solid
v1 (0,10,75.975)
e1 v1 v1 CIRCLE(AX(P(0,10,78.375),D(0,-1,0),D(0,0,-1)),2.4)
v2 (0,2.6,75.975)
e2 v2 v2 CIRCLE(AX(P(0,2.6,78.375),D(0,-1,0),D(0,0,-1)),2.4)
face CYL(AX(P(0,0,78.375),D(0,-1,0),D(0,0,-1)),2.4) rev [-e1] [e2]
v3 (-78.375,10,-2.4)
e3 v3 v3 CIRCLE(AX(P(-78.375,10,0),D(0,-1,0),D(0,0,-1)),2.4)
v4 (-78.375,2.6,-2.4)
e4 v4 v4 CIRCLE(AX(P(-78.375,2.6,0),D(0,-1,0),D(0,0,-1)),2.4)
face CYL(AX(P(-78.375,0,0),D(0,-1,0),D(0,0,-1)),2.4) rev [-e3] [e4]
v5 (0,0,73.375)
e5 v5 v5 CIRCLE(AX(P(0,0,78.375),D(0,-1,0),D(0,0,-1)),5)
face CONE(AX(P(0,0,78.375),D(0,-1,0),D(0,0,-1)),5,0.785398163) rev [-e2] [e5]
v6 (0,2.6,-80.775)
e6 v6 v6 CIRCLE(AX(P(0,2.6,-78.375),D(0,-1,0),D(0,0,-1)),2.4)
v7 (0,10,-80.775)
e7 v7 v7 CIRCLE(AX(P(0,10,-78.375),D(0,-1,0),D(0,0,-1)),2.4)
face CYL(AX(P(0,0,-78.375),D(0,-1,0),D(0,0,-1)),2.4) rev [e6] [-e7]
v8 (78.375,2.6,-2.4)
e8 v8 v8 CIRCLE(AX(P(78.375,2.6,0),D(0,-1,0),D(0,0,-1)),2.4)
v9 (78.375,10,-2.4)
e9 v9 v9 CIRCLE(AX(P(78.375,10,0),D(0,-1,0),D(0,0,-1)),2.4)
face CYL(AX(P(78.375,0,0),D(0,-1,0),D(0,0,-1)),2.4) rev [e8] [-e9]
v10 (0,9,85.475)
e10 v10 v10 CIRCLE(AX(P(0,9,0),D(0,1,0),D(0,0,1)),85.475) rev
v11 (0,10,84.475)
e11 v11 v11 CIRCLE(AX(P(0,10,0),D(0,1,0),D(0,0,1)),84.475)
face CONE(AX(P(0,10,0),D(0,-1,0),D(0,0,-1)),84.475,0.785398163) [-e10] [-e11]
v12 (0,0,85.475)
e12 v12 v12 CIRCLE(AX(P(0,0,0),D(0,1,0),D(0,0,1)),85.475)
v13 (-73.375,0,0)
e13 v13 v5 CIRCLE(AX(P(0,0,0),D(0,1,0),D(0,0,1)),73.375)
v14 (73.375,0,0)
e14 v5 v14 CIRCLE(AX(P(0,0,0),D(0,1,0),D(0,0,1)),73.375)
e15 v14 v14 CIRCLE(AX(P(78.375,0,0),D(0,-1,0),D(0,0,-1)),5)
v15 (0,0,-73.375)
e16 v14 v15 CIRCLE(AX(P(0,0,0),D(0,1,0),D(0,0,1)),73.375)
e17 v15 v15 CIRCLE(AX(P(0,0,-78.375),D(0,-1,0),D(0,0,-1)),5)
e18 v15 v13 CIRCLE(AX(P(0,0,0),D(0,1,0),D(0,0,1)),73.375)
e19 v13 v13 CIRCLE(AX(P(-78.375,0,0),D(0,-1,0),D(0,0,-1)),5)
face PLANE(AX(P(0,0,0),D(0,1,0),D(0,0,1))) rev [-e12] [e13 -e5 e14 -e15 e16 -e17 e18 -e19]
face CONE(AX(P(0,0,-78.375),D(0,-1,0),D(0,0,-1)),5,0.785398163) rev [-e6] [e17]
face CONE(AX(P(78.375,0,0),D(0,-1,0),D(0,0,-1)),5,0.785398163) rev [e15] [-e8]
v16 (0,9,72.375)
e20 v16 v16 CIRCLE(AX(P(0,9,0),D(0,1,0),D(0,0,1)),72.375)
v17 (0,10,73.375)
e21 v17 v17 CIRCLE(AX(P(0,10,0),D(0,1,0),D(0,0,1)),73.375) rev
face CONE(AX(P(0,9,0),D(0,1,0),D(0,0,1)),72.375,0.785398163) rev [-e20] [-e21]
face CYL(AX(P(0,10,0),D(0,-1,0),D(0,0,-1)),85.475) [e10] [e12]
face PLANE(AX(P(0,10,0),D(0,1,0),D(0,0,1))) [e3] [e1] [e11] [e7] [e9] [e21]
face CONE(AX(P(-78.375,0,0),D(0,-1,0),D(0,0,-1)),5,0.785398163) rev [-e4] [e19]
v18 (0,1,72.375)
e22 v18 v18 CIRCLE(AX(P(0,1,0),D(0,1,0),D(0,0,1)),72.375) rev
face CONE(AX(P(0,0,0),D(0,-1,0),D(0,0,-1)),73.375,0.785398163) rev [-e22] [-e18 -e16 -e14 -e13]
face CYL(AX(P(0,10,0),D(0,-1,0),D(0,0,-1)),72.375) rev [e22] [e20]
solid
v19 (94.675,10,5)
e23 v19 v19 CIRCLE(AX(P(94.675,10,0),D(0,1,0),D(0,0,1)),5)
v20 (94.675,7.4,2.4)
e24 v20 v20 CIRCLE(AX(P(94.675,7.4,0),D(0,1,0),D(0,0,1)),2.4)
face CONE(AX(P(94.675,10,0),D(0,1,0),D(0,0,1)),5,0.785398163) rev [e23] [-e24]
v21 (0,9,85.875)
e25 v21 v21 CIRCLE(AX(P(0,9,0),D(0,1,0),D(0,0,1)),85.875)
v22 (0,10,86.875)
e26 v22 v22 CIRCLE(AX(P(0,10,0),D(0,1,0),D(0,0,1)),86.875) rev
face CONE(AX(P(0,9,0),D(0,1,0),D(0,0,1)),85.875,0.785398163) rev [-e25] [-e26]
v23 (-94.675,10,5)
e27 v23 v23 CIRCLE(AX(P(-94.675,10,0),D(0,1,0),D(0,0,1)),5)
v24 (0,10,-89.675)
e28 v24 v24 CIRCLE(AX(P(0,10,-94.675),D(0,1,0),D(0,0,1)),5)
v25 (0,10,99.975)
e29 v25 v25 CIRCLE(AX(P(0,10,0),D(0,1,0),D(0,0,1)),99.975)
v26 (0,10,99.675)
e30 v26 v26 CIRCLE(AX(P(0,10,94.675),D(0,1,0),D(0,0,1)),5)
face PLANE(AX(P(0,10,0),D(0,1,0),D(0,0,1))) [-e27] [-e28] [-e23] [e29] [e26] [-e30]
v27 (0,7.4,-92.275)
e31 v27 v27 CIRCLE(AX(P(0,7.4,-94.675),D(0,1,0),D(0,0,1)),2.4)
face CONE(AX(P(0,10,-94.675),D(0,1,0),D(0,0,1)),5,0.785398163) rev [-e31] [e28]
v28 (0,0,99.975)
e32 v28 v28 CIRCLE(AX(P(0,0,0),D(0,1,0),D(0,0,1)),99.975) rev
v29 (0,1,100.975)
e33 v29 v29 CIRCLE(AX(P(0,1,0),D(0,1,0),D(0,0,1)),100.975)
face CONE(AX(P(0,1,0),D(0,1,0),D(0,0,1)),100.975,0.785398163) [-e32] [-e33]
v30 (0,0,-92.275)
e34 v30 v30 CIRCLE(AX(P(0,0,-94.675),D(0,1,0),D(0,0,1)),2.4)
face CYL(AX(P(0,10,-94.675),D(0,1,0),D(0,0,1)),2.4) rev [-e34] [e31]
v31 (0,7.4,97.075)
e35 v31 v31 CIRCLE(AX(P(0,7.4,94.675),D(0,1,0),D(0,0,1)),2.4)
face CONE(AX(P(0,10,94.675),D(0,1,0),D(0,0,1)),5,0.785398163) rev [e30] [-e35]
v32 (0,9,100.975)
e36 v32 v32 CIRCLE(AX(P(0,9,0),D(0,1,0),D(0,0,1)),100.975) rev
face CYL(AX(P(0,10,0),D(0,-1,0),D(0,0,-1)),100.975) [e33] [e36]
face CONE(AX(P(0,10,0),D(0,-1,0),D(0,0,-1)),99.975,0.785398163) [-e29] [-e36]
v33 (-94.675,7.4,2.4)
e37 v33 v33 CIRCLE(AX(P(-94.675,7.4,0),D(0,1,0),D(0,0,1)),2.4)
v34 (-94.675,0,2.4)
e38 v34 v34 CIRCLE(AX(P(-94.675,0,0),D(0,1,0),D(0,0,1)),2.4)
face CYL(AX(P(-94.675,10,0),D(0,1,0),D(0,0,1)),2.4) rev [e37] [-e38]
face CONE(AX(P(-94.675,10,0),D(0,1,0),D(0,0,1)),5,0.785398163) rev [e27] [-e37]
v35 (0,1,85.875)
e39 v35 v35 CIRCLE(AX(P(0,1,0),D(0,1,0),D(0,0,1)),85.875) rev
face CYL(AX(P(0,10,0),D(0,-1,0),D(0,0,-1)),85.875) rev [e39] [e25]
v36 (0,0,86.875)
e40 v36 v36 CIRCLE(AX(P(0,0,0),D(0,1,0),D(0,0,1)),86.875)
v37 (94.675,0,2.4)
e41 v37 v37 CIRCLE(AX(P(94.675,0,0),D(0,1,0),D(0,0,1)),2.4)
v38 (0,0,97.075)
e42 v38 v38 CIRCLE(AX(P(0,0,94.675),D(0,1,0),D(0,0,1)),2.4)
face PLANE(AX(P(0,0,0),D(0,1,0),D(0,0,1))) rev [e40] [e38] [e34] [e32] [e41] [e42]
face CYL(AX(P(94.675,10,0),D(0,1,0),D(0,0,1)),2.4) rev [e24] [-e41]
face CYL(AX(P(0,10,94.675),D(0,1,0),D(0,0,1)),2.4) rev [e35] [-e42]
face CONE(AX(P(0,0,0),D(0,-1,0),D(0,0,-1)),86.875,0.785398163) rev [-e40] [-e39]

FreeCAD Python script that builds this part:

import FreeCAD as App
import Part
import Sketcher
Q = App.Units.Quantity


def edges_at(feature, points):
    """Names of the edges that pass closest to the given points."""
    edges = feature.Shape.Edges
    near = lambda p: min(range(len(edges)), key=lambda i: edges[i].distToShape(Part.Vertex(*p))[0])
    return sorted({f"Edge{near(p) + 1}" for p in points})

doc = App.newDocument("Part")
body = doc.addObject("PartDesign::Body", "Body")

sketch1 = body.newObject("Sketcher::SketchObject", "Sketch")
sketch1.AttachmentSupport = (doc.getObject("XZ_Plane"), [""])
sketch1.MapMode = "FlatFace"
sketch1.addGeometry(Part.Circle(App.Vector(0, 0, 0), App.Vector(0, 0, 1), 101), False)
sketch1.addGeometry(Part.Circle(App.Vector(0, 0, 0), App.Vector(0, 0, 1), 86), False)
sketch1.addConstraint(Sketcher.Constraint("Coincident", 0, 3, -1, 1))
sketch1.addConstraint(Sketcher.Constraint("Coincident", 1, 3, -1, 1))
sketch1.addConstraint(Sketcher.Constraint("Diameter", 0, Q("201.95 mm")))
sketch1.addConstraint(Sketcher.Constraint("Diameter", 1, Q("171.75 mm")))
pad1 = body.newObject("PartDesign::Pad", "Pad")
pad1.Profile = sketch1
pad1.Length = 10
pad1.Reversed = True
doc.recompute()

chamfer = body.newObject("PartDesign::Chamfer", "Chamfer")
chamfer.Base = (pad1, edges_at(pad1, [
    (0, 10, -100.975),
    (0, 0, -100.975),
    (0, 0, -85.875),
    (0, 10, -85.875),
]))
chamfer.Size = 1

sketch2 = body.newObject("Sketcher::SketchObject", "Sketch001")
sketch2.AttachmentSupport = (doc.getObject("YZ_Plane"), [""])
sketch2.MapMode = "FlatFace"
sketch2.AttachmentOffset = App.Placement(App.Vector(0, 0, 94.675), App.Rotation())
sketch2.addGeometry(Part.LineSegment(App.Vector(0, 0, 0), App.Vector(10, 0, 0)), False)
sketch2.addGeometry(Part.LineSegment(App.Vector(10, 0, 0), App.Vector(10, 5, 0)), False)
sketch2.addGeometry(Part.LineSegment(App.Vector(10, 5, 0), App.Vector(7.4, 2.4, 0)), False)
sketch2.addGeometry(Part.LineSegment(App.Vector(7.4, 2.4, 0), App.Vector(0, 2.4, 0)), False)
sketch2.addGeometry(Part.LineSegment(App.Vector(0, 2.4, 0), App.Vector(0, 0, 0)), False)
sketch2.addConstraint(Sketcher.Constraint("Coincident", 0, 2, 1, 1))
sketch2.addConstraint(Sketcher.Constraint("Coincident", 1, 2, 2, 1))
sketch2.addConstraint(Sketcher.Constraint("Coincident", 2, 2, 3, 1))
sketch2.addConstraint(Sketcher.Constraint("Coincident", 3, 2, 4, 1))
sketch2.addConstraint(Sketcher.Constraint("Coincident", 4, 2, 0, 1))
sketch2.addConstraint(Sketcher.Constraint("Horizontal", 0))
sketch2.addConstraint(Sketcher.Constraint("Vertical", 1))
sketch2.addConstraint(Sketcher.Constraint("Horizontal", 3))
sketch2.addConstraint(Sketcher.Constraint("Vertical", 4))
sketch2.addConstraint(Sketcher.Constraint("Coincident", 4, 2, -1, 1))
sketch2.addConstraint(Sketcher.Constraint("DistanceX", 0, 1, 0, 2, Q("10 mm")))
sketch2.addConstraint(Sketcher.Constraint("DistanceY", 1, 1, 1, 2, Q("5 mm")))
sketch2.addConstraint(Sketcher.Constraint("Angle", 2, Q("-135 deg")))
sketch2.addConstraint(Sketcher.Constraint("DistanceX", 3, 2, 3, 1, Q("7.4 mm")))
groove = body.newObject("PartDesign::Groove", "Groove")
groove.Profile = sketch2
groove.ReferenceAxis = (sketch2, ["H_Axis"])
groove.Angle = 360
doc.recompute()

datumline = body.newObject("PartDesign::Line", "DatumLine")
datumline.Placement = App.Placement(App.Vector(0, 0, 0), App.Rotation(App.Vector(0, 0, 1), App.Vector(-0.707106781, 0, 0.707106781)))
linearpattern = body.newObject("PartDesign::LinearPattern", "LinearPattern")
linearpattern.Originals = [groove]
linearpattern.Direction = (datumline, [""])
linearpattern.Mode = "offset"
linearpattern.Offset = 133.890669
linearpattern.Occurrences = 2
body.Tip = linearpattern
doc.recompute()

linearpattern2 = body.newObject("PartDesign::LinearPattern", "LinearPattern001")
linearpattern2.Originals = [groove]
linearpattern2.Direction = (doc.getObject("X_Axis"), [""])
linearpattern2.Mode = "offset"
linearpattern2.Offset = 189.35
linearpattern2.Occurrences = 2
linearpattern2.Reversed = True
body.Tip = linearpattern2
doc.recompute()

datumline2 = body.newObject("PartDesign::Line", "DatumLine001")
datumline2.Placement = App.Placement(App.Vector(0, 0, 0), App.Rotation(App.Vector(0, 0, 1), App.Vector(-0.707106781, 0, -0.707106781)))
linearpattern3 = body.newObject("PartDesign::LinearPattern", "LinearPattern002")
linearpattern3.Originals = [groove]
linearpattern3.Direction = (datumline2, [""])
linearpattern3.Mode = "offset"
linearpattern3.Offset = 133.890669
linearpattern3.Occurrences = 2
body.Tip = linearpattern3
body2 = doc.addObject("PartDesign::Body", "Body001")

sketch3 = body2.newObject("Sketcher::SketchObject", "Sketch002")
sketch3.AttachmentSupport = (doc.getObject("XZ_Plane001"), [""])
sketch3.MapMode = "FlatFace"
sketch3.addGeometry(Part.Circle(App.Vector(0, 0, 0), App.Vector(0, 0, 1), 85), False)
sketch3.addGeometry(Part.Circle(App.Vector(0, 0, 0), App.Vector(0, 0, 1), 72), False)
sketch3.addConstraint(Sketcher.Constraint("Coincident", 0, 3, -1, 1))
sketch3.addConstraint(Sketcher.Constraint("Coincident", 1, 3, -1, 1))
sketch3.addConstraint(Sketcher.Constraint("Diameter", 0, Q("170.95 mm")))
sketch3.addConstraint(Sketcher.Constraint("Diameter", 1, Q("144.75 mm")))
pad2 = body2.newObject("PartDesign::Pad", "Pad001")
pad2.Profile = sketch3
pad2.Length = 10
pad2.Reversed = True
doc.recompute()

chamfer2 = body2.newObject("PartDesign::Chamfer", "Chamfer001")
chamfer2.Base = (pad2, edges_at(pad2, [(0, 10, -85.475), (0, 0, -72.375), (0, 10, -72.375)]))
chamfer2.Size = 1

sketch4 = body2.newObject("Sketcher::SketchObject", "Sketch003")
sketch4.AttachmentSupport = (doc.getObject("YZ_Plane001"), [""])
sketch4.MapMode = "FlatFace"
sketch4.addGeometry(Part.LineSegment(App.Vector(10, 78.4, 0), App.Vector(0, 78.4, 0)), False)
sketch4.addGeometry(Part.LineSegment(App.Vector(0, 78.4, 0), App.Vector(0, 73.4, 0)), False)
sketch4.addGeometry(Part.LineSegment(App.Vector(0, 73.4, 0), App.Vector(2.6, 76, 0)), False)
sketch4.addGeometry(Part.LineSegment(App.Vector(2.6, 76, 0), App.Vector(10, 76, 0)), False)
sketch4.addGeometry(Part.LineSegment(App.Vector(10, 76, 0), App.Vector(10, 78.4, 0)), False)
sketch4.addGeometry(Part.LineSegment(App.Vector(0, 78.4, 0), App.Vector(10, 78.4, 0)), True)
sketch4.addConstraint(Sketcher.Constraint("Coincident", 0, 2, 1, 1))
sketch4.addConstraint(Sketcher.Constraint("Coincident", 1, 2, 2, 1))
sketch4.addConstraint(Sketcher.Constraint("Coincident", 2, 2, 3, 1))
sketch4.addConstraint(Sketcher.Constraint("Coincident", 3, 2, 4, 1))
sketch4.addConstraint(Sketcher.Constraint("Coincident", 4, 2, 0, 1))
sketch4.addConstraint(Sketcher.Constraint("Horizontal", 0))
sketch4.addConstraint(Sketcher.Constraint("Vertical", 1))
sketch4.addConstraint(Sketcher.Constraint("Horizontal", 3))
sketch4.addConstraint(Sketcher.Constraint("Vertical", 4))
sketch4.addConstraint(Sketcher.Constraint("Horizontal", 5))
sketch4.addConstraint(Sketcher.Constraint("Coincident", 5, 1, 0, 2))
sketch4.addConstraint(Sketcher.Constraint("PointOnObject", 0, 2, -2))
sketch4.addConstraint(Sketcher.Constraint("Vertical", 3, 2, 5, 2))
sketch4.addConstraint(Sketcher.Constraint("DistanceX", 0, 2, 0, 1, Q("10 mm")))
sketch4.addConstraint(Sketcher.Constraint("DistanceY", 1, 2, 1, 1, Q("5 mm")))
sketch4.addConstraint(Sketcher.Constraint("Angle", 2, Q("45 deg")))
sketch4.addConstraint(Sketcher.Constraint("DistanceX", 3, 1, 3, 2, Q("7.4 mm")))
sketch4.addConstraint(Sketcher.Constraint("DistanceY", -1, 1, 0, 2, Q("78.375 mm")))
groove2 = body2.newObject("PartDesign::Groove", "Groove001")
groove2.Profile = sketch4
groove2.ReferenceAxis = (sketch4, ["Axis0"])
groove2.Angle = 360
doc.recompute()

datumline3 = body2.newObject("PartDesign::Line", "DatumLine002")
datumline3.Placement = App.Placement(App.Vector(0, 0, 0), App.Rotation(App.Vector(0, 0, 1), App.Vector(0.707106781, 0, -0.707106781)))
linearpattern4 = body2.newObject("PartDesign::LinearPattern", "LinearPattern003")
linearpattern4.Originals = [groove2]
linearpattern4.Direction = (datumline3, [""])
linearpattern4.Mode = "offset"
linearpattern4.Offset = 110.838988
linearpattern4.Occurrences = 2
body2.Tip = linearpattern4
doc.recompute()

linearpattern5 = body2.newObject("PartDesign::LinearPattern", "LinearPattern004")
linearpattern5.Originals = [groove2]
linearpattern5.Direction = (doc.getObject("Z_Axis001"), [""])
linearpattern5.Mode = "offset"
linearpattern5.Offset = 156.75
linearpattern5.Occurrences = 2
linearpattern5.Reversed = True
body2.Tip = linearpattern5
doc.recompute()

datumline4 = body2.newObject("PartDesign::Line", "DatumLine003")
datumline4.Placement = App.Placement(App.Vector(0, 0, 0), App.Rotation(App.Vector(0, 0, 1), App.Vector(-0.707106781, 0, -0.707106781)))
linearpattern6 = body2.newObject("PartDesign::LinearPattern", "LinearPattern005")
linearpattern6.Originals = [groove2]
linearpattern6.Direction = (datumline4, [""])
linearpattern6.Mode = "offset"
linearpattern6.Offset = 110.838988
linearpattern6.Occurrences = 2
body2.Tip = linearpattern6

doc.recompute()
